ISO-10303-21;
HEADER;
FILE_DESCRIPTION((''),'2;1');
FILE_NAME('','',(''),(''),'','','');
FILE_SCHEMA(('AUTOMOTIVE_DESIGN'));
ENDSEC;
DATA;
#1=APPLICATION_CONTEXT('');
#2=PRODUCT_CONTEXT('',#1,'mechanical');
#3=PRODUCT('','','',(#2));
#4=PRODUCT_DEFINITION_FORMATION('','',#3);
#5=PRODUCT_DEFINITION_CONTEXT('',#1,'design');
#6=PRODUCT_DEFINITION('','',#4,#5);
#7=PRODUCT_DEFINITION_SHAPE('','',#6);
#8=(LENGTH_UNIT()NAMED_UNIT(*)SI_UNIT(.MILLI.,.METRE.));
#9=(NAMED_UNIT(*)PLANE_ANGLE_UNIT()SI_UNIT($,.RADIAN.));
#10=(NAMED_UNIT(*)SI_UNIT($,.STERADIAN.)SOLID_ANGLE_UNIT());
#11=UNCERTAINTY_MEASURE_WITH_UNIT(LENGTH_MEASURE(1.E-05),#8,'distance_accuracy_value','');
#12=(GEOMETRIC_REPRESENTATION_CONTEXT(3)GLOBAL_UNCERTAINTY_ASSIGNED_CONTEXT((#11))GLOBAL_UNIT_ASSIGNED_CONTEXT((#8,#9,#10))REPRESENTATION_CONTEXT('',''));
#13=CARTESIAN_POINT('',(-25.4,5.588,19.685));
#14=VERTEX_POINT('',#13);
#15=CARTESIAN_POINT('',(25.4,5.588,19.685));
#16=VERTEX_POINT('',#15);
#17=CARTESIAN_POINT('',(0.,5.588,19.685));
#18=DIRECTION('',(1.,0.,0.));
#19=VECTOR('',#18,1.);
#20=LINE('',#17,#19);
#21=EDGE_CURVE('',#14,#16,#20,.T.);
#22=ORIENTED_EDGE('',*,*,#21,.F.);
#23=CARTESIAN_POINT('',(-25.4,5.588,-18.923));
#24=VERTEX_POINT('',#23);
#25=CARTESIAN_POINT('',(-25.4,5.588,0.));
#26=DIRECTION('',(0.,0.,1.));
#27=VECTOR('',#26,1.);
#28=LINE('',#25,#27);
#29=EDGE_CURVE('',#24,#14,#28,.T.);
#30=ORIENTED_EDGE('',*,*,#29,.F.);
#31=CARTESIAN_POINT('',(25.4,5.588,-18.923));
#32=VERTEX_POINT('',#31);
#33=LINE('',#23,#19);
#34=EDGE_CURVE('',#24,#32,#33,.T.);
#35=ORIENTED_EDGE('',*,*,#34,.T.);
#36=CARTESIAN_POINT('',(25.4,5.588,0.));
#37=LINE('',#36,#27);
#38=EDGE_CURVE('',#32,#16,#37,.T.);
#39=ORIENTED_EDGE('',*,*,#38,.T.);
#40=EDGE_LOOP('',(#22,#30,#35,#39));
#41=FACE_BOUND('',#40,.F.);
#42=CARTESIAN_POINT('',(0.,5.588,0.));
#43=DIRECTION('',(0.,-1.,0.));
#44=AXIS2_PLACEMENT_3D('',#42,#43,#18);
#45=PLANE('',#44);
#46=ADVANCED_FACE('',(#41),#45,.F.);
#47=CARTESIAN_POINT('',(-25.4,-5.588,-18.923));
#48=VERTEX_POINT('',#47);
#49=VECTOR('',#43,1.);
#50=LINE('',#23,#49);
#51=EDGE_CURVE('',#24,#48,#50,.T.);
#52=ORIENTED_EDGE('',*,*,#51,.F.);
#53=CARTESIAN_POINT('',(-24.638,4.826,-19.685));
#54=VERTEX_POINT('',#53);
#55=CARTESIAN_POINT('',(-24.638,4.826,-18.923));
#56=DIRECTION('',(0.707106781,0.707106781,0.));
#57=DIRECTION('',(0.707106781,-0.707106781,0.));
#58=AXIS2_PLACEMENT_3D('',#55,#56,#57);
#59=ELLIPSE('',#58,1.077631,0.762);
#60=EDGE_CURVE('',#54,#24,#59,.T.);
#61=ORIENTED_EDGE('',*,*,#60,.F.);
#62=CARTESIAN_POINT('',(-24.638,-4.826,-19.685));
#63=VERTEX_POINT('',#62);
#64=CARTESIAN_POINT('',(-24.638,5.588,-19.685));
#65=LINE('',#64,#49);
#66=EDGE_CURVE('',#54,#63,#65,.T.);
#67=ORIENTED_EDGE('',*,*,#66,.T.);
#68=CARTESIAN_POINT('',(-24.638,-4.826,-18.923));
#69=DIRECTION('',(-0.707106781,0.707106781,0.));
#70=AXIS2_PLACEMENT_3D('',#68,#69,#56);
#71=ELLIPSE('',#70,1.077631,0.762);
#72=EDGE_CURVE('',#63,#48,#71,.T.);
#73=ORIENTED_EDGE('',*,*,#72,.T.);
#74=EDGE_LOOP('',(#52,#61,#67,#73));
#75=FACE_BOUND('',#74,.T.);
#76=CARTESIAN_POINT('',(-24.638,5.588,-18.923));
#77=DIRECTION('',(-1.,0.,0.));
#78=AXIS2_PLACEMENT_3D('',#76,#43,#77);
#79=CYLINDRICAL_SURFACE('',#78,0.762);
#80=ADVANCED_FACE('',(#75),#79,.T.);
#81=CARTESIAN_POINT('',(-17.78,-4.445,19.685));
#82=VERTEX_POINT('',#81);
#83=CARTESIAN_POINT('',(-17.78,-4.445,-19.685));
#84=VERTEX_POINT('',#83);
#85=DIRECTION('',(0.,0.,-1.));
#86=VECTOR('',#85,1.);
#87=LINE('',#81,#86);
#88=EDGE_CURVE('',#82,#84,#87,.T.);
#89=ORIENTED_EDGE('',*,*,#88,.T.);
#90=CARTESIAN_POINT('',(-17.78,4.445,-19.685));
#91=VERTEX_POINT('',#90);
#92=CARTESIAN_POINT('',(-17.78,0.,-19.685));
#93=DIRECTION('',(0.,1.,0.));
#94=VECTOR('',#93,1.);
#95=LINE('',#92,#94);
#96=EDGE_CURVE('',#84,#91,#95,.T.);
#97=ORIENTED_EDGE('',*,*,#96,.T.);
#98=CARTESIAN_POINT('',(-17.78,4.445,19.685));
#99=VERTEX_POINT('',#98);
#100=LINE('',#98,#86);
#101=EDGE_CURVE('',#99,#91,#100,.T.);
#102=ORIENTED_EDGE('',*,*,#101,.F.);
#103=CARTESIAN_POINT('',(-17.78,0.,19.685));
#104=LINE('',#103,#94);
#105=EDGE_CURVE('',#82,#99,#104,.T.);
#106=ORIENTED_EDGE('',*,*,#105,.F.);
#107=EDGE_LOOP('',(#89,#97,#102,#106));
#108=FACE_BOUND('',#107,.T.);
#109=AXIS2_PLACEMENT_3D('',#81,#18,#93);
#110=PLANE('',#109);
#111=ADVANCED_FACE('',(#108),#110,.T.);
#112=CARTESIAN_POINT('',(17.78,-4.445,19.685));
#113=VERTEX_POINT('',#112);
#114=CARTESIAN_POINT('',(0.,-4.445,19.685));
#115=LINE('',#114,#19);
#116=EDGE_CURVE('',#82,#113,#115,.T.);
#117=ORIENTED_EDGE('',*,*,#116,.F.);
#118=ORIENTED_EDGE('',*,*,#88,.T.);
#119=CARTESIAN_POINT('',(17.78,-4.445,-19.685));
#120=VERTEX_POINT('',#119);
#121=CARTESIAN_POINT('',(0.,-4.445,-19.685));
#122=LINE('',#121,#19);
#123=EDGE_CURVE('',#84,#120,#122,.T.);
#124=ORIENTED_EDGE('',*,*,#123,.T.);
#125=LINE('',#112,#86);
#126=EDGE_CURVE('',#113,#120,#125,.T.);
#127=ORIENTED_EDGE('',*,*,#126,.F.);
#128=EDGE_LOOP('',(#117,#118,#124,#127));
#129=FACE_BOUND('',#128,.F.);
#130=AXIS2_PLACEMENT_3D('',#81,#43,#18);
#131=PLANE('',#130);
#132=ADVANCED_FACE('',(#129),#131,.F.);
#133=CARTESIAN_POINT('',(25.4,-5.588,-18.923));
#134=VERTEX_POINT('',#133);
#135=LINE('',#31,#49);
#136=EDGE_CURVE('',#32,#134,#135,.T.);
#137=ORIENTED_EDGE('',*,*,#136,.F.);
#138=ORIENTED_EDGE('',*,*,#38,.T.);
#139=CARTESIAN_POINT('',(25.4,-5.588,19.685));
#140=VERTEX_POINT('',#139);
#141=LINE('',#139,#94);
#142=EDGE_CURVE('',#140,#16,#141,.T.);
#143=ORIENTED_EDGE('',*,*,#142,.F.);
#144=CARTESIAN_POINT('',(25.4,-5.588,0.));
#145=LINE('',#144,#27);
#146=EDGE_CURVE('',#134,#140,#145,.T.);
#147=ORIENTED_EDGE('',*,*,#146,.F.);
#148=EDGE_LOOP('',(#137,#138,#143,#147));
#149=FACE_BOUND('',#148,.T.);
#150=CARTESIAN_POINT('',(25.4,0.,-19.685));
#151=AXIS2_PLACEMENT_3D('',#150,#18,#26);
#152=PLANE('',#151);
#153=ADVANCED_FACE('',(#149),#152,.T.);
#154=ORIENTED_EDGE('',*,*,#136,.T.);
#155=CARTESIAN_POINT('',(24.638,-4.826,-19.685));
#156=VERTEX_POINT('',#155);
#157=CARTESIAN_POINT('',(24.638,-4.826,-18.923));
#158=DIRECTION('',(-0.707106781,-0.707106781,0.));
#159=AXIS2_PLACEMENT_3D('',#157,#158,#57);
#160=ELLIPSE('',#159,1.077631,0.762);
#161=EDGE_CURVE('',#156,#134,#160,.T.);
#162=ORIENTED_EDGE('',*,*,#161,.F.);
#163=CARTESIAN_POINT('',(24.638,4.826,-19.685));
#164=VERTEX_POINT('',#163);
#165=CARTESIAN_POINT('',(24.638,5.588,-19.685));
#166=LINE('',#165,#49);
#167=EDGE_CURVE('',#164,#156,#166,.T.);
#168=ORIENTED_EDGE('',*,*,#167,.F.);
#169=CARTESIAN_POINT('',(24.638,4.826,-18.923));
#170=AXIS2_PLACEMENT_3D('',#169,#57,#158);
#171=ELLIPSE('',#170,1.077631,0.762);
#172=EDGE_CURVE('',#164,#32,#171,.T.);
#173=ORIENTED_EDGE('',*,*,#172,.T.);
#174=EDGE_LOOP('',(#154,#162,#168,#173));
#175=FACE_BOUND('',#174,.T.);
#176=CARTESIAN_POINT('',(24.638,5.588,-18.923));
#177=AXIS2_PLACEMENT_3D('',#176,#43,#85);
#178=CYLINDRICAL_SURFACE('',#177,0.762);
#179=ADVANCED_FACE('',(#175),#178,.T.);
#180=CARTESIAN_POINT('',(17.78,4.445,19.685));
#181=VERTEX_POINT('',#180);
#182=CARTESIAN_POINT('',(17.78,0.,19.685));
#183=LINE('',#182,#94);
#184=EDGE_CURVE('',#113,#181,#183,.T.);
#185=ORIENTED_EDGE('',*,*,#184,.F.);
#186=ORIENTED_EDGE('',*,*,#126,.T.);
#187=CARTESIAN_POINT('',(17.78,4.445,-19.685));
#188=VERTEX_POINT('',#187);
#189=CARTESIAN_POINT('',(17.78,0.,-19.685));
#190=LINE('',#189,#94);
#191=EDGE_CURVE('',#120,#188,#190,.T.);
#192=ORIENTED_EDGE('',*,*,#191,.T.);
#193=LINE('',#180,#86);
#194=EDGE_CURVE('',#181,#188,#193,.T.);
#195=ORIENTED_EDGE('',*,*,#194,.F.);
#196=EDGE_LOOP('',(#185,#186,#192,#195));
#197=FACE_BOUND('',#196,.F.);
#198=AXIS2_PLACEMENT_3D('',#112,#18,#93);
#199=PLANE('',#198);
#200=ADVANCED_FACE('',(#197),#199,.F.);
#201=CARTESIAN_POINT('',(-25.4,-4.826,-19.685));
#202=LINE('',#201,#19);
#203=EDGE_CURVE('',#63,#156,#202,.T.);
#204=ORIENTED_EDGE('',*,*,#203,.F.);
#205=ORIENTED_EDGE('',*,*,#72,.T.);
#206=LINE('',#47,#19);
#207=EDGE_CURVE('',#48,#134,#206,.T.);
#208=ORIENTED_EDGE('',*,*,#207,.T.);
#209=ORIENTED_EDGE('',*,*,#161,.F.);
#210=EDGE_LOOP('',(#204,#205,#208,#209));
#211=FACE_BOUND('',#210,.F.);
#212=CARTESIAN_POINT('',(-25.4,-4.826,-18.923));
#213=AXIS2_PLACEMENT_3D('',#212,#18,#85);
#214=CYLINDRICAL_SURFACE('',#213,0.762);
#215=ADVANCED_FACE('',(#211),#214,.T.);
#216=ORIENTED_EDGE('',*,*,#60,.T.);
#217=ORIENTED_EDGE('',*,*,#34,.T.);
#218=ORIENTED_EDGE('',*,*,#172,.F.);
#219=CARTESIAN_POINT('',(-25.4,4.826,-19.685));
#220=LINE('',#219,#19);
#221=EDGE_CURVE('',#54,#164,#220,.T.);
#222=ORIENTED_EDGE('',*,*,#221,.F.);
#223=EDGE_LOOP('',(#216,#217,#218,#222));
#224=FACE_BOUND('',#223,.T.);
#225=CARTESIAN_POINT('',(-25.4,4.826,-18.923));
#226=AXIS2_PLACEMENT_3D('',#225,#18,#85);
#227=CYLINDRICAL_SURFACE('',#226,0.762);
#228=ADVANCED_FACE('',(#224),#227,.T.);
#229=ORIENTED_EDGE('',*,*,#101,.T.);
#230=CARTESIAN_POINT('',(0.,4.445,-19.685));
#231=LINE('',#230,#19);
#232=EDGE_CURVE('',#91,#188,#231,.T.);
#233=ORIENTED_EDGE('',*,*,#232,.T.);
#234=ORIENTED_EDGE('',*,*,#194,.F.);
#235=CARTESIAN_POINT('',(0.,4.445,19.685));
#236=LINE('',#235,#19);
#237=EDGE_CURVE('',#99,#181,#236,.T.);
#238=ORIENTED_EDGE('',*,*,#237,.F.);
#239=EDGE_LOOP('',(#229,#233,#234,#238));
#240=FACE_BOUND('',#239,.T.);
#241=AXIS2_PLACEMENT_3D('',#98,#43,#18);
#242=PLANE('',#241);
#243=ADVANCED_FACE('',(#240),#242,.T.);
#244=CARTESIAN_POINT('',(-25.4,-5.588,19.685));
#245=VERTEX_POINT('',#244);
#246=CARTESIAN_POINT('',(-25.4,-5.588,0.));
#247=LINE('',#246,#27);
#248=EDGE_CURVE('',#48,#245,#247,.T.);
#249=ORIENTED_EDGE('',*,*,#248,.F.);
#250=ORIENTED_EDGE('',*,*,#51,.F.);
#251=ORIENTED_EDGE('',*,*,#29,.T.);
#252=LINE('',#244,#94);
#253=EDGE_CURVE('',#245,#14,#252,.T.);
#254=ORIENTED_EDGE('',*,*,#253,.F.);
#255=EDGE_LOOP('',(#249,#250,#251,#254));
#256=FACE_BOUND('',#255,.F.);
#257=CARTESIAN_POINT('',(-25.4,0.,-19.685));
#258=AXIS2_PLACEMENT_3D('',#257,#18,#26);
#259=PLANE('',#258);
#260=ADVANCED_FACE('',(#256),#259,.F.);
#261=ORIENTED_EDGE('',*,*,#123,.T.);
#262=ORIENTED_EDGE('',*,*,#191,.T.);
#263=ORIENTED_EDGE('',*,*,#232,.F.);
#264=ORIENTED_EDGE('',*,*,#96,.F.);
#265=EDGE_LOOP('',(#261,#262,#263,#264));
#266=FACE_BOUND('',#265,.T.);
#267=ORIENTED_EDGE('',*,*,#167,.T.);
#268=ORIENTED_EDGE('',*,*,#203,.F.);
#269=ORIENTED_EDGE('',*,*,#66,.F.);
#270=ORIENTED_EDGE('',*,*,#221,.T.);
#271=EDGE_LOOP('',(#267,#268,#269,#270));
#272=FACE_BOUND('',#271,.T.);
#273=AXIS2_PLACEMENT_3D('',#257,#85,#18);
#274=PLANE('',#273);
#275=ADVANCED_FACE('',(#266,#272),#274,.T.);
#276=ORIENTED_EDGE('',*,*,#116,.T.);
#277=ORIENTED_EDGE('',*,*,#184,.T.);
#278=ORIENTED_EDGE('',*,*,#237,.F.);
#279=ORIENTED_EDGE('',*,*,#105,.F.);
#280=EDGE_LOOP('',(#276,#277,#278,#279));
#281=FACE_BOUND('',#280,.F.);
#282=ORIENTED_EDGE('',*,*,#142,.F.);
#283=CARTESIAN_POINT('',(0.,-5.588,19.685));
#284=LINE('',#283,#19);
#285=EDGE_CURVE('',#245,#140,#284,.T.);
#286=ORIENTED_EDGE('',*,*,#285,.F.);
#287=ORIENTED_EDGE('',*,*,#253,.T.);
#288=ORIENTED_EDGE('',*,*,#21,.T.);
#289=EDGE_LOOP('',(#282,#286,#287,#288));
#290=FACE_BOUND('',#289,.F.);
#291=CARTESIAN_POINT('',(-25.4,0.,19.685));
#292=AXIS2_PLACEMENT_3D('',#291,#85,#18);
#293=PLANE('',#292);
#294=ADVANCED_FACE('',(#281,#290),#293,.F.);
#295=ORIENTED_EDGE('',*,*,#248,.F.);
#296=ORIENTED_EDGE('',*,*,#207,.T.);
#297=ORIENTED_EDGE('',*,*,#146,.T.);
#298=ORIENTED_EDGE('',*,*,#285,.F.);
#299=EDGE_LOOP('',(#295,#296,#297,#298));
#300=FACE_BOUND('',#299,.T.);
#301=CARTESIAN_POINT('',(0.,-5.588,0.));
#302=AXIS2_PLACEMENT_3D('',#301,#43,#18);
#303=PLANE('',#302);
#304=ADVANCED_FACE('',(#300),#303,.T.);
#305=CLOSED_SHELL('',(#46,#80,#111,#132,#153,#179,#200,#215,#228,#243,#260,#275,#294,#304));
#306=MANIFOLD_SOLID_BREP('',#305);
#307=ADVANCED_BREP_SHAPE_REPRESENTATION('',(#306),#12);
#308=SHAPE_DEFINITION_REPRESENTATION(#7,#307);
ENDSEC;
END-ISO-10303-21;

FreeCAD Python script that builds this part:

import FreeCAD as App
import Part
import Sketcher
Q = App.Units.Quantity


def edges_at(feature, points):
    """Names of the edges that pass closest to the given points."""
    edges = feature.Shape.Edges
    near = lambda p: min(range(len(edges)), key=lambda i: edges[i].distToShape(Part.Vertex(*p))[0])
    return sorted({f"Edge{near(p) + 1}" for p in points})


def add_polygon(sketch, points):
    """Adds a closed chain of lines whose ends are joined by coincident constraints."""
    first, n = sketch.GeometryCount, len(points)
    for a, b in zip(points, points[1:] + points[:1]):
        sketch.addGeometry(Part.LineSegment(App.Vector(*a, 0), App.Vector(*b, 0)), False)
    for i in range(n):
        sketch.addConstraint(Sketcher.Constraint("Coincident", first + i, 2, first + (i + 1) % n, 1))

doc = App.newDocument("Part")
body = doc.addObject("PartDesign::Body", "Body")

sketch1 = body.newObject("Sketcher::SketchObject", "Sketch")
sketch1.AttachmentSupport = (doc.getObject("XZ_Plane"), [""])
sketch1.MapMode = "FlatFace"
add_polygon(sketch1, [(-25.4, 19.685), (-25.4, -19.685), (25.4, -19.685), (25.4, 19.685)])
sketch1.addConstraint(Sketcher.Constraint("Vertical", 0))
sketch1.addConstraint(Sketcher.Constraint("Horizontal", 1))
sketch1.addConstraint(Sketcher.Constraint("Vertical", 2))
sketch1.addConstraint(Sketcher.Constraint("Horizontal", 3))
sketch1.addConstraint(Sketcher.Constraint("Symmetric", 0, 2, 2, 2, -1, 1))
sketch1.addConstraint(Sketcher.Constraint("DistanceX", 1, 1, 1, 2, Q("2 in")))
sketch1.addConstraint(Sketcher.Constraint("DistanceY", 0, 2, 0, 1, Q("1.55 in")))
pad1 = body.newObject("PartDesign::Pad", "Pad")
pad1.Profile = sketch1
pad1.Length = Q("0.44 in")
pad1.Midplane = True

sketch2 = body.newObject("Sketcher::SketchObject", "Sketch001")
sketch2.AttachmentSupport = (doc.getObject("XY_Plane"), [""])
sketch2.MapMode = "FlatFace"
sketch2.AttachmentOffset = App.Placement(App.Vector(0, 0, 0.775 * 25.4), App.Rotation())
add_polygon(sketch2, [(-17.78, 4.445), (-17.78, -4.445), (17.78, -4.445), (17.78, 4.445)])
sketch2.addConstraint(Sketcher.Constraint("Vertical", 0))
sketch2.addConstraint(Sketcher.Constraint("Horizontal", 1))
sketch2.addConstraint(Sketcher.Constraint("Vertical", 2))
sketch2.addConstraint(Sketcher.Constraint("Horizontal", 3))
sketch2.addConstraint(Sketcher.Constraint("Symmetric", 0, 2, 2, 2, -1, 1))
sketch2.addConstraint(Sketcher.Constraint("DistanceX", 1, 1, 1, 2, Q("1.4 in")))
sketch2.addConstraint(Sketcher.Constraint("DistanceY", 0, 2, 0, 1, Q("0.35 in")))
pocket1 = body.newObject("PartDesign::Pocket", "Pocket")
pocket1.Profile = sketch2
pocket1.Length = Q("1.55 in")
doc.recompute()

fillet = body.newObject("PartDesign::Fillet", "Fillet")
fillet.Base = (pocket1, edges_at(pocket1, [
    (25.4, 0, -19.685),
    (0, -5.588, -19.685),
    (0, 5.588, -19.685),
    (-25.4, 0, -19.685),
]))
fillet.Radius = Q("0.03 in")

doc.recompute()
